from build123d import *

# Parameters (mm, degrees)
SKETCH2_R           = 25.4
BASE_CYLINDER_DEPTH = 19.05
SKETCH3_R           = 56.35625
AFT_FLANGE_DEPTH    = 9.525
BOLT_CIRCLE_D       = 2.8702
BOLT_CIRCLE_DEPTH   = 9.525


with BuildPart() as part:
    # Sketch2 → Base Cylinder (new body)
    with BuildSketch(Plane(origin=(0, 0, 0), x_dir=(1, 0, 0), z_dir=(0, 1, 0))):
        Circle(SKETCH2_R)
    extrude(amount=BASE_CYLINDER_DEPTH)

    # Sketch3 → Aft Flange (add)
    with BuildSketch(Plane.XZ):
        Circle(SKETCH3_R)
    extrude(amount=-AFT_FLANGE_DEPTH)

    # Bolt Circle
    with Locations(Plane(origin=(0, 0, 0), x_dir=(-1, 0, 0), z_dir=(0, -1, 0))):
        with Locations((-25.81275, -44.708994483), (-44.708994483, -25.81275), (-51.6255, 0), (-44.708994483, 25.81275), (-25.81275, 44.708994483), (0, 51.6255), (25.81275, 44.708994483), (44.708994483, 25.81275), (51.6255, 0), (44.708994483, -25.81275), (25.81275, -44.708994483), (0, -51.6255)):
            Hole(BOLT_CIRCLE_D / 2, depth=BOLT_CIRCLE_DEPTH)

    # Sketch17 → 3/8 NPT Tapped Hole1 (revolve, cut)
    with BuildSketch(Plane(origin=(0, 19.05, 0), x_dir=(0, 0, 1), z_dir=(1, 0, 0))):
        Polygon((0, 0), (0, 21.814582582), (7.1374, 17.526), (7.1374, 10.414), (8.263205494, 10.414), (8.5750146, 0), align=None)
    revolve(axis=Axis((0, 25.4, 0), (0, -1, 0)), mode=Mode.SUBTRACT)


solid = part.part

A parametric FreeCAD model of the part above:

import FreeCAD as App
import Part
import Sketcher
Q = App.Units.Quantity

doc = App.newDocument("Part")
body = doc.addObject("PartDesign::Body", "Body")

sketch1 = body.newObject("Sketcher::SketchObject", "Sketch")
sketch1.AttachmentSupport = (doc.getObject("XZ_Plane"), [""])
sketch1.MapMode = "FlatFace"
sketch1.addGeometry(Part.Circle(App.Vector(0, 0, 0), App.Vector(0, 0, 1), 25.4), False)
sketch1.addConstraint(Sketcher.Constraint("Coincident", 0, 3, -1, 1))
sketch1.addConstraint(Sketcher.Constraint("Diameter", 0, Q("2 in")))
pad1 = body.newObject("PartDesign::Pad", "Pad")
pad1.Profile = sketch1
pad1.Length = Q("0.75 in")
pad1.Reversed = True

sketch2 = body.newObject("Sketcher::SketchObject", "Sketch001")
sketch2.AttachmentSupport = (doc.getObject("XZ_Plane"), [""])
sketch2.MapMode = "FlatFace"
sketch2.addGeometry(Part.Circle(App.Vector(0, 0, 0), App.Vector(0, 0, 1), 56.35625), False)
sketch2.addConstraint(Sketcher.Constraint("Coincident", 0, 3, -1, 1))
sketch2.addConstraint(Sketcher.Constraint("Diameter", 0, Q("4.4375 in")))
pad2 = body.newObject("PartDesign::Pad", "Pad001")
pad2.Profile = sketch2
pad2.Length = Q("0.375 in")
pad2.Reversed = True

sketch3 = body.newObject("Sketcher::SketchObject", "Sketch002")
sketch3.AttachmentSupport = (doc.getObject("XZ_Plane"), [""])
sketch3.MapMode = "FlatFace"
sketch3.addGeometry(Part.Circle(App.Vector(25.81275, 44.708994, 0), App.Vector(0, 0, 1), 1.4351), False)
sketch3.addGeometry(Part.Circle(App.Vector(44.708994, 25.81275, 0), App.Vector(0, 0, 1), 1.4351), False)
sketch3.addGeometry(Part.Circle(App.Vector(51.6255, 0, 0), App.Vector(0, 0, 1), 1.4351), False)
sketch3.addGeometry(Part.Circle(App.Vector(44.708994, -25.81275, 0), App.Vector(0, 0, 1), 1.4351), False)
sketch3.addGeometry(Part.Circle(App.Vector(25.81275, -44.708994, 0), App.Vector(0, 0, 1), 1.4351), False)
sketch3.addGeometry(Part.Circle(App.Vector(0, -51.6255, 0), App.Vector(0, 0, 1), 1.4351), False)
sketch3.addGeometry(Part.Circle(App.Vector(-25.81275, -44.708994, 0), App.Vector(0, 0, 1), 1.4351), False)
sketch3.addGeometry(Part.Circle(App.Vector(-44.708994, -25.81275, 0), App.Vector(0, 0, 1), 1.4351), False)
sketch3.addGeometry(Part.Circle(App.Vector(-51.6255, 0, 0), App.Vector(0, 0, 1), 1.4351), False)
sketch3.addGeometry(Part.Circle(App.Vector(-44.708994, 25.81275, 0), App.Vector(0, 0, 1), 1.4351), False)
sketch3.addGeometry(Part.Circle(App.Vector(-25.81275, 44.708994, 0), App.Vector(0, 0, 1), 1.4351), False)
sketch3.addGeometry(Part.Circle(App.Vector(0, 51.6255, 0), App.Vector(0, 0, 1), 1.4351), False)
sketch3.addConstraint(Sketcher.Constraint("Equal", 0, 1))
sketch3.addConstraint(Sketcher.Constraint("Equal", 1, 2))
sketch3.addConstraint(Sketcher.Constraint("Equal", 2, 3))
sketch3.addConstraint(Sketcher.Constraint("Equal", 3, 4))
sketch3.addConstraint(Sketcher.Constraint("Equal", 4, 5))
sketch3.addConstraint(Sketcher.Constraint("Equal", 5, 6))
sketch3.addConstraint(Sketcher.Constraint("Equal", 6, 7))
sketch3.addConstraint(Sketcher.Constraint("Equal", 7, 8))
sketch3.addConstraint(Sketcher.Constraint("Equal", 8, 9))
sketch3.addConstraint(Sketcher.Constraint("Equal", 9, 10))
sketch3.addConstraint(Sketcher.Constraint("Equal", 10, 11))
sketch3.addConstraint(Sketcher.Constraint("Symmetric", 0, 3, 6, 3, -1, 1))
sketch3.addConstraint(Sketcher.Constraint("Symmetric", 1, 3, 7, 3, -1, 1))
sketch3.addConstraint(Sketcher.Constraint("Symmetric", 2, 3, 8, 3, -1, 1))
sketch3.addConstraint(Sketcher.Constraint("Symmetric", 3, 3, 9, 3, -1, 1))
sketch3.addConstraint(Sketcher.Constraint("Symmetric", 4, 3, 10, 3, -1, 1))
sketch3.addConstraint(Sketcher.Constraint("Symmetric", 5, 3, 11, 3, -1, 1))
sketch3.addConstraint(Sketcher.Constraint("Symmetric", 4, 3, 6, 3, -2))
sketch3.addConstraint(Sketcher.Constraint("Symmetric", 3, 3, 7, 3, -2))
sketch3.addConstraint(Sketcher.Constraint("PointOnObject", 2, 3, -1))
sketch3.addConstraint(Sketcher.Constraint("PointOnObject", 5, 3, -2))
sketch3.addConstraint(Sketcher.Constraint("Diameter", 0, Q("0.113 in")))
sketch3.addConstraint(Sketcher.Constraint("DistanceX", -1, 1, 2, 3, Q("2.0325 in")))
sketch3.addConstraint(Sketcher.Constraint("DistanceY", 5, 3, -1, 1, Q("2.0325 in")))
sketch3.addConstraint(Sketcher.Constraint("DistanceY", 3, 3, 1, 3, Q("2.0325 in")))
sketch3.addConstraint(Sketcher.Constraint("DistanceX", 6, 3, 4, 3, Q("2.0325 in")))
sketch3.addConstraint(Sketcher.Constraint("DistanceY", 4, 3, 0, 3, Q("89.417989 mm")))
sketch3.addConstraint(Sketcher.Constraint("DistanceX", 7, 3, 3, 3, Q("89.417989 mm")))
doc.recompute()
hole = body.newObject("PartDesign::Hole", "Hole")
hole.Profile = sketch3
hole.ThreadType = "None"
hole.Diameter = Q("0.113 in")
hole.DepthType = "Dimension"
hole.Depth = Q("0.375 in")
hole.DrillPoint = "Flat"

sketch4 = body.newObject("Sketcher::SketchObject", "Sketch003")
sketch4.AttachmentSupport = (doc.getObject("YZ_Plane"), [""])
sketch4.MapMode = "FlatFace"
sketch4.addGeometry(Part.LineSegment(App.Vector(-2.764583, 0, 0), App.Vector(19.05, 0, 0)), False)
sketch4.addGeometry(Part.LineSegment(App.Vector(19.05, 0, 0), App.Vector(19.05, 8.575015, 0)), False)
sketch4.addGeometry(Part.LineSegment(App.Vector(19.05, 8.575015, 0), App.Vector(8.636, 8.263205, 0)), False)
sketch4.addGeometry(Part.LineSegment(App.Vector(8.636, 8.263205, 0), App.Vector(8.636, 7.1374, 0)), False)
sketch4.addGeometry(Part.LineSegment(App.Vector(8.636, 7.1374, 0), App.Vector(1.524, 7.1374, 0)), False)
sketch4.addGeometry(Part.LineSegment(App.Vector(1.524, 7.1374, 0), App.Vector(-2.764583, 0, 0)), False)
sketch4.addConstraint(Sketcher.Constraint("Coincident", 0, 2, 1, 1))
sketch4.addConstraint(Sketcher.Constraint("Coincident", 1, 2, 2, 1))
sketch4.addConstraint(Sketcher.Constraint("Coincident", 2, 2, 3, 1))
sketch4.addConstraint(Sketcher.Constraint("Coincident", 3, 2, 4, 1))
sketch4.addConstraint(Sketcher.Constraint("Coincident", 4, 2, 5, 1))
sketch4.addConstraint(Sketcher.Constraint("Coincident", 5, 2, 0, 1))
sketch4.addConstraint(Sketcher.Constraint("Horizontal", 0))
sketch4.addConstraint(Sketcher.Constraint("Vertical", 1))
sketch4.addConstraint(Sketcher.Constraint("Vertical", 3))
sketch4.addConstraint(Sketcher.Constraint("Horizontal", 4))
sketch4.addConstraint(Sketcher.Constraint("PointOnObject", 0, 2, -1))
sketch4.addConstraint(Sketcher.Constraint("Angle", 5, Q("-121 deg")))
sketch4.addConstraint(Sketcher.Constraint("DistanceX", 4, 2, 4, 1, Q("0.28 in")))
sketch4.addConstraint(Sketcher.Constraint("DistanceX", -1, 1, 0, 2, Q("0.75 in")))
sketch4.addConstraint(Sketcher.Constraint("DistanceX", -1, 1, 2, 2, Q("0.34 in")))
sketch4.addConstraint(Sketcher.Constraint("DistanceY", -1, 1, 3, 2, Q("0.281 in")))
sketch4.addConstraint(Sketcher.Constraint("DistanceY", 1, 1, 1, 2, Q("8.575015 mm")))
sketch4.addConstraint(Sketcher.Constraint("DistanceY", 3, 2, 3, 1, Q("1.125805 mm")))
groove = body.newObject("PartDesign::Groove", "Groove")
groove.Profile = sketch4
groove.ReferenceAxis = (sketch4, ["H_Axis"])
groove.Angle = 360

doc.recompute()
